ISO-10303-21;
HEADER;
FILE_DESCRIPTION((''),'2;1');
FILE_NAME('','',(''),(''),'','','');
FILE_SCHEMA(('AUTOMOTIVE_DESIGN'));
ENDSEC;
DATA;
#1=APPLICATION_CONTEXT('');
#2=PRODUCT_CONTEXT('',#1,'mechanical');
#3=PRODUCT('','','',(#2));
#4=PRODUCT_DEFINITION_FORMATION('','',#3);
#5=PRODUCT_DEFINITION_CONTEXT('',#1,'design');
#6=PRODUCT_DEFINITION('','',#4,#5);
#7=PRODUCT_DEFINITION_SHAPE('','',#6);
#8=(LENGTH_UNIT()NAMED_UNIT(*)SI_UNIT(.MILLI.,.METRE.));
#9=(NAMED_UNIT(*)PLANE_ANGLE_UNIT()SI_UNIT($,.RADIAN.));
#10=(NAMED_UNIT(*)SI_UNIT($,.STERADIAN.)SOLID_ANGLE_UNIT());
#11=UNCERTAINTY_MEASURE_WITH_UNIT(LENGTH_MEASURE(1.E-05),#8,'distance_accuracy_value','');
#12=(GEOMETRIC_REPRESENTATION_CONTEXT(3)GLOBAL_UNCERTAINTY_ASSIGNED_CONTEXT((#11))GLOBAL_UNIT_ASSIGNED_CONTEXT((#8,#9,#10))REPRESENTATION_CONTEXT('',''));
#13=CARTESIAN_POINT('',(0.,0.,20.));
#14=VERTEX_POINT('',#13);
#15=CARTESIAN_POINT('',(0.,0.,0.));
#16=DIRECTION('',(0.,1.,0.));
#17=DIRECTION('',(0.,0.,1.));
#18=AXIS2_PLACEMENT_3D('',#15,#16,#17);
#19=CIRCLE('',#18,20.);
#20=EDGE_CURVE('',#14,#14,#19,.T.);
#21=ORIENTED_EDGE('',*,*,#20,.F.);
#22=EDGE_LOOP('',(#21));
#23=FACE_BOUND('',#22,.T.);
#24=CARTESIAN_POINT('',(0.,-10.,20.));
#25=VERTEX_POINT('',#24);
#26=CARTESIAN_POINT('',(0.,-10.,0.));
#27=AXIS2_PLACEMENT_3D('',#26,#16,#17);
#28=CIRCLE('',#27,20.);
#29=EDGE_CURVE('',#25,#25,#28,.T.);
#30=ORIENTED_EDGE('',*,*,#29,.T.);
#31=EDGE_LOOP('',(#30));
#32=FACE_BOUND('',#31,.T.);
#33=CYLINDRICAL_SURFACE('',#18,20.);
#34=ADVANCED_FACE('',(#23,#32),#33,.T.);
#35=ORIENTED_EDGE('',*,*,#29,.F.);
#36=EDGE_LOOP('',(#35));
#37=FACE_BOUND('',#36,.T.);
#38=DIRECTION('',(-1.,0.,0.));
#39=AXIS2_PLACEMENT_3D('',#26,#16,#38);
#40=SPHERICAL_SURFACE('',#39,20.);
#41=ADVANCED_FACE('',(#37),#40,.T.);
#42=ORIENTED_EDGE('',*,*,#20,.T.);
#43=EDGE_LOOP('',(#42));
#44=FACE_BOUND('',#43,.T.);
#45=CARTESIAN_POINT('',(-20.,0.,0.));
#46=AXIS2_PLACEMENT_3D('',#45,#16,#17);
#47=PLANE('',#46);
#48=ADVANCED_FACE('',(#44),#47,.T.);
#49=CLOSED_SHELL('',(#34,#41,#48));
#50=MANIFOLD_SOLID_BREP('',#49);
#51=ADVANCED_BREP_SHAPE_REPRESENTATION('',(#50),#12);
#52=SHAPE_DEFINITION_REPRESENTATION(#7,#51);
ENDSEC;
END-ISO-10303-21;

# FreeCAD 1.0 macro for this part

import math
import FreeCAD as App
import Part
import Sketcher

V = App.Vector

doc = App.newDocument("Part")
body = doc.addObject("PartDesign::Body", "Body")

# Sketch on XY plane
sketch1 = body.newObject("Sketcher::SketchObject", "Sketch")
sketch1.AttachmentSupport = (doc.getObject("XY_Plane"), [""])
sketch1.MapMode = "FlatFace"
sketch1.addGeometry([
    Part.LineSegment(V(0, -30, 0), V(0, 0, 0)),
    Part.LineSegment(V(0, 0, 0), V(-20, 0, 0)),
    Part.LineSegment(V(-20, 0, 0), V(-20, -10, 0)),
    Part.ArcOfCircle(Part.Circle(V(0, -10, 0), V(0, 0, 1), 20), math.radians(180), math.radians(270)),
], False)
sketch1.addConstraint([
    Sketcher.Constraint("Coincident", 0, 2, 1, 1),
    Sketcher.Constraint("Coincident", 1, 2, 2, 1),
    Sketcher.Constraint("Tangent", 2, 2, 3, 1),
    Sketcher.Constraint("Coincident", 3, 2, 0, 1),
    Sketcher.Constraint("Vertical", 0),
    Sketcher.Constraint("Horizontal", 1),
    Sketcher.Constraint("Vertical", 2),
    Sketcher.Constraint("Coincident", 0, 2, -1, 1),
    Sketcher.Constraint("PointOnObject", 3, 3, -2),
    Sketcher.Constraint("Radius", 3, 20.0),
    Sketcher.Constraint("DistanceY", 0, 1, 0, 2, 30.0),
])
revolution = body.newObject("PartDesign::Revolution", "Revolution")
revolution.Profile = sketch1
revolution.ReferenceAxis = (sketch1, ["V_Axis"])
revolution.Angle = 360

doc.recompute()
